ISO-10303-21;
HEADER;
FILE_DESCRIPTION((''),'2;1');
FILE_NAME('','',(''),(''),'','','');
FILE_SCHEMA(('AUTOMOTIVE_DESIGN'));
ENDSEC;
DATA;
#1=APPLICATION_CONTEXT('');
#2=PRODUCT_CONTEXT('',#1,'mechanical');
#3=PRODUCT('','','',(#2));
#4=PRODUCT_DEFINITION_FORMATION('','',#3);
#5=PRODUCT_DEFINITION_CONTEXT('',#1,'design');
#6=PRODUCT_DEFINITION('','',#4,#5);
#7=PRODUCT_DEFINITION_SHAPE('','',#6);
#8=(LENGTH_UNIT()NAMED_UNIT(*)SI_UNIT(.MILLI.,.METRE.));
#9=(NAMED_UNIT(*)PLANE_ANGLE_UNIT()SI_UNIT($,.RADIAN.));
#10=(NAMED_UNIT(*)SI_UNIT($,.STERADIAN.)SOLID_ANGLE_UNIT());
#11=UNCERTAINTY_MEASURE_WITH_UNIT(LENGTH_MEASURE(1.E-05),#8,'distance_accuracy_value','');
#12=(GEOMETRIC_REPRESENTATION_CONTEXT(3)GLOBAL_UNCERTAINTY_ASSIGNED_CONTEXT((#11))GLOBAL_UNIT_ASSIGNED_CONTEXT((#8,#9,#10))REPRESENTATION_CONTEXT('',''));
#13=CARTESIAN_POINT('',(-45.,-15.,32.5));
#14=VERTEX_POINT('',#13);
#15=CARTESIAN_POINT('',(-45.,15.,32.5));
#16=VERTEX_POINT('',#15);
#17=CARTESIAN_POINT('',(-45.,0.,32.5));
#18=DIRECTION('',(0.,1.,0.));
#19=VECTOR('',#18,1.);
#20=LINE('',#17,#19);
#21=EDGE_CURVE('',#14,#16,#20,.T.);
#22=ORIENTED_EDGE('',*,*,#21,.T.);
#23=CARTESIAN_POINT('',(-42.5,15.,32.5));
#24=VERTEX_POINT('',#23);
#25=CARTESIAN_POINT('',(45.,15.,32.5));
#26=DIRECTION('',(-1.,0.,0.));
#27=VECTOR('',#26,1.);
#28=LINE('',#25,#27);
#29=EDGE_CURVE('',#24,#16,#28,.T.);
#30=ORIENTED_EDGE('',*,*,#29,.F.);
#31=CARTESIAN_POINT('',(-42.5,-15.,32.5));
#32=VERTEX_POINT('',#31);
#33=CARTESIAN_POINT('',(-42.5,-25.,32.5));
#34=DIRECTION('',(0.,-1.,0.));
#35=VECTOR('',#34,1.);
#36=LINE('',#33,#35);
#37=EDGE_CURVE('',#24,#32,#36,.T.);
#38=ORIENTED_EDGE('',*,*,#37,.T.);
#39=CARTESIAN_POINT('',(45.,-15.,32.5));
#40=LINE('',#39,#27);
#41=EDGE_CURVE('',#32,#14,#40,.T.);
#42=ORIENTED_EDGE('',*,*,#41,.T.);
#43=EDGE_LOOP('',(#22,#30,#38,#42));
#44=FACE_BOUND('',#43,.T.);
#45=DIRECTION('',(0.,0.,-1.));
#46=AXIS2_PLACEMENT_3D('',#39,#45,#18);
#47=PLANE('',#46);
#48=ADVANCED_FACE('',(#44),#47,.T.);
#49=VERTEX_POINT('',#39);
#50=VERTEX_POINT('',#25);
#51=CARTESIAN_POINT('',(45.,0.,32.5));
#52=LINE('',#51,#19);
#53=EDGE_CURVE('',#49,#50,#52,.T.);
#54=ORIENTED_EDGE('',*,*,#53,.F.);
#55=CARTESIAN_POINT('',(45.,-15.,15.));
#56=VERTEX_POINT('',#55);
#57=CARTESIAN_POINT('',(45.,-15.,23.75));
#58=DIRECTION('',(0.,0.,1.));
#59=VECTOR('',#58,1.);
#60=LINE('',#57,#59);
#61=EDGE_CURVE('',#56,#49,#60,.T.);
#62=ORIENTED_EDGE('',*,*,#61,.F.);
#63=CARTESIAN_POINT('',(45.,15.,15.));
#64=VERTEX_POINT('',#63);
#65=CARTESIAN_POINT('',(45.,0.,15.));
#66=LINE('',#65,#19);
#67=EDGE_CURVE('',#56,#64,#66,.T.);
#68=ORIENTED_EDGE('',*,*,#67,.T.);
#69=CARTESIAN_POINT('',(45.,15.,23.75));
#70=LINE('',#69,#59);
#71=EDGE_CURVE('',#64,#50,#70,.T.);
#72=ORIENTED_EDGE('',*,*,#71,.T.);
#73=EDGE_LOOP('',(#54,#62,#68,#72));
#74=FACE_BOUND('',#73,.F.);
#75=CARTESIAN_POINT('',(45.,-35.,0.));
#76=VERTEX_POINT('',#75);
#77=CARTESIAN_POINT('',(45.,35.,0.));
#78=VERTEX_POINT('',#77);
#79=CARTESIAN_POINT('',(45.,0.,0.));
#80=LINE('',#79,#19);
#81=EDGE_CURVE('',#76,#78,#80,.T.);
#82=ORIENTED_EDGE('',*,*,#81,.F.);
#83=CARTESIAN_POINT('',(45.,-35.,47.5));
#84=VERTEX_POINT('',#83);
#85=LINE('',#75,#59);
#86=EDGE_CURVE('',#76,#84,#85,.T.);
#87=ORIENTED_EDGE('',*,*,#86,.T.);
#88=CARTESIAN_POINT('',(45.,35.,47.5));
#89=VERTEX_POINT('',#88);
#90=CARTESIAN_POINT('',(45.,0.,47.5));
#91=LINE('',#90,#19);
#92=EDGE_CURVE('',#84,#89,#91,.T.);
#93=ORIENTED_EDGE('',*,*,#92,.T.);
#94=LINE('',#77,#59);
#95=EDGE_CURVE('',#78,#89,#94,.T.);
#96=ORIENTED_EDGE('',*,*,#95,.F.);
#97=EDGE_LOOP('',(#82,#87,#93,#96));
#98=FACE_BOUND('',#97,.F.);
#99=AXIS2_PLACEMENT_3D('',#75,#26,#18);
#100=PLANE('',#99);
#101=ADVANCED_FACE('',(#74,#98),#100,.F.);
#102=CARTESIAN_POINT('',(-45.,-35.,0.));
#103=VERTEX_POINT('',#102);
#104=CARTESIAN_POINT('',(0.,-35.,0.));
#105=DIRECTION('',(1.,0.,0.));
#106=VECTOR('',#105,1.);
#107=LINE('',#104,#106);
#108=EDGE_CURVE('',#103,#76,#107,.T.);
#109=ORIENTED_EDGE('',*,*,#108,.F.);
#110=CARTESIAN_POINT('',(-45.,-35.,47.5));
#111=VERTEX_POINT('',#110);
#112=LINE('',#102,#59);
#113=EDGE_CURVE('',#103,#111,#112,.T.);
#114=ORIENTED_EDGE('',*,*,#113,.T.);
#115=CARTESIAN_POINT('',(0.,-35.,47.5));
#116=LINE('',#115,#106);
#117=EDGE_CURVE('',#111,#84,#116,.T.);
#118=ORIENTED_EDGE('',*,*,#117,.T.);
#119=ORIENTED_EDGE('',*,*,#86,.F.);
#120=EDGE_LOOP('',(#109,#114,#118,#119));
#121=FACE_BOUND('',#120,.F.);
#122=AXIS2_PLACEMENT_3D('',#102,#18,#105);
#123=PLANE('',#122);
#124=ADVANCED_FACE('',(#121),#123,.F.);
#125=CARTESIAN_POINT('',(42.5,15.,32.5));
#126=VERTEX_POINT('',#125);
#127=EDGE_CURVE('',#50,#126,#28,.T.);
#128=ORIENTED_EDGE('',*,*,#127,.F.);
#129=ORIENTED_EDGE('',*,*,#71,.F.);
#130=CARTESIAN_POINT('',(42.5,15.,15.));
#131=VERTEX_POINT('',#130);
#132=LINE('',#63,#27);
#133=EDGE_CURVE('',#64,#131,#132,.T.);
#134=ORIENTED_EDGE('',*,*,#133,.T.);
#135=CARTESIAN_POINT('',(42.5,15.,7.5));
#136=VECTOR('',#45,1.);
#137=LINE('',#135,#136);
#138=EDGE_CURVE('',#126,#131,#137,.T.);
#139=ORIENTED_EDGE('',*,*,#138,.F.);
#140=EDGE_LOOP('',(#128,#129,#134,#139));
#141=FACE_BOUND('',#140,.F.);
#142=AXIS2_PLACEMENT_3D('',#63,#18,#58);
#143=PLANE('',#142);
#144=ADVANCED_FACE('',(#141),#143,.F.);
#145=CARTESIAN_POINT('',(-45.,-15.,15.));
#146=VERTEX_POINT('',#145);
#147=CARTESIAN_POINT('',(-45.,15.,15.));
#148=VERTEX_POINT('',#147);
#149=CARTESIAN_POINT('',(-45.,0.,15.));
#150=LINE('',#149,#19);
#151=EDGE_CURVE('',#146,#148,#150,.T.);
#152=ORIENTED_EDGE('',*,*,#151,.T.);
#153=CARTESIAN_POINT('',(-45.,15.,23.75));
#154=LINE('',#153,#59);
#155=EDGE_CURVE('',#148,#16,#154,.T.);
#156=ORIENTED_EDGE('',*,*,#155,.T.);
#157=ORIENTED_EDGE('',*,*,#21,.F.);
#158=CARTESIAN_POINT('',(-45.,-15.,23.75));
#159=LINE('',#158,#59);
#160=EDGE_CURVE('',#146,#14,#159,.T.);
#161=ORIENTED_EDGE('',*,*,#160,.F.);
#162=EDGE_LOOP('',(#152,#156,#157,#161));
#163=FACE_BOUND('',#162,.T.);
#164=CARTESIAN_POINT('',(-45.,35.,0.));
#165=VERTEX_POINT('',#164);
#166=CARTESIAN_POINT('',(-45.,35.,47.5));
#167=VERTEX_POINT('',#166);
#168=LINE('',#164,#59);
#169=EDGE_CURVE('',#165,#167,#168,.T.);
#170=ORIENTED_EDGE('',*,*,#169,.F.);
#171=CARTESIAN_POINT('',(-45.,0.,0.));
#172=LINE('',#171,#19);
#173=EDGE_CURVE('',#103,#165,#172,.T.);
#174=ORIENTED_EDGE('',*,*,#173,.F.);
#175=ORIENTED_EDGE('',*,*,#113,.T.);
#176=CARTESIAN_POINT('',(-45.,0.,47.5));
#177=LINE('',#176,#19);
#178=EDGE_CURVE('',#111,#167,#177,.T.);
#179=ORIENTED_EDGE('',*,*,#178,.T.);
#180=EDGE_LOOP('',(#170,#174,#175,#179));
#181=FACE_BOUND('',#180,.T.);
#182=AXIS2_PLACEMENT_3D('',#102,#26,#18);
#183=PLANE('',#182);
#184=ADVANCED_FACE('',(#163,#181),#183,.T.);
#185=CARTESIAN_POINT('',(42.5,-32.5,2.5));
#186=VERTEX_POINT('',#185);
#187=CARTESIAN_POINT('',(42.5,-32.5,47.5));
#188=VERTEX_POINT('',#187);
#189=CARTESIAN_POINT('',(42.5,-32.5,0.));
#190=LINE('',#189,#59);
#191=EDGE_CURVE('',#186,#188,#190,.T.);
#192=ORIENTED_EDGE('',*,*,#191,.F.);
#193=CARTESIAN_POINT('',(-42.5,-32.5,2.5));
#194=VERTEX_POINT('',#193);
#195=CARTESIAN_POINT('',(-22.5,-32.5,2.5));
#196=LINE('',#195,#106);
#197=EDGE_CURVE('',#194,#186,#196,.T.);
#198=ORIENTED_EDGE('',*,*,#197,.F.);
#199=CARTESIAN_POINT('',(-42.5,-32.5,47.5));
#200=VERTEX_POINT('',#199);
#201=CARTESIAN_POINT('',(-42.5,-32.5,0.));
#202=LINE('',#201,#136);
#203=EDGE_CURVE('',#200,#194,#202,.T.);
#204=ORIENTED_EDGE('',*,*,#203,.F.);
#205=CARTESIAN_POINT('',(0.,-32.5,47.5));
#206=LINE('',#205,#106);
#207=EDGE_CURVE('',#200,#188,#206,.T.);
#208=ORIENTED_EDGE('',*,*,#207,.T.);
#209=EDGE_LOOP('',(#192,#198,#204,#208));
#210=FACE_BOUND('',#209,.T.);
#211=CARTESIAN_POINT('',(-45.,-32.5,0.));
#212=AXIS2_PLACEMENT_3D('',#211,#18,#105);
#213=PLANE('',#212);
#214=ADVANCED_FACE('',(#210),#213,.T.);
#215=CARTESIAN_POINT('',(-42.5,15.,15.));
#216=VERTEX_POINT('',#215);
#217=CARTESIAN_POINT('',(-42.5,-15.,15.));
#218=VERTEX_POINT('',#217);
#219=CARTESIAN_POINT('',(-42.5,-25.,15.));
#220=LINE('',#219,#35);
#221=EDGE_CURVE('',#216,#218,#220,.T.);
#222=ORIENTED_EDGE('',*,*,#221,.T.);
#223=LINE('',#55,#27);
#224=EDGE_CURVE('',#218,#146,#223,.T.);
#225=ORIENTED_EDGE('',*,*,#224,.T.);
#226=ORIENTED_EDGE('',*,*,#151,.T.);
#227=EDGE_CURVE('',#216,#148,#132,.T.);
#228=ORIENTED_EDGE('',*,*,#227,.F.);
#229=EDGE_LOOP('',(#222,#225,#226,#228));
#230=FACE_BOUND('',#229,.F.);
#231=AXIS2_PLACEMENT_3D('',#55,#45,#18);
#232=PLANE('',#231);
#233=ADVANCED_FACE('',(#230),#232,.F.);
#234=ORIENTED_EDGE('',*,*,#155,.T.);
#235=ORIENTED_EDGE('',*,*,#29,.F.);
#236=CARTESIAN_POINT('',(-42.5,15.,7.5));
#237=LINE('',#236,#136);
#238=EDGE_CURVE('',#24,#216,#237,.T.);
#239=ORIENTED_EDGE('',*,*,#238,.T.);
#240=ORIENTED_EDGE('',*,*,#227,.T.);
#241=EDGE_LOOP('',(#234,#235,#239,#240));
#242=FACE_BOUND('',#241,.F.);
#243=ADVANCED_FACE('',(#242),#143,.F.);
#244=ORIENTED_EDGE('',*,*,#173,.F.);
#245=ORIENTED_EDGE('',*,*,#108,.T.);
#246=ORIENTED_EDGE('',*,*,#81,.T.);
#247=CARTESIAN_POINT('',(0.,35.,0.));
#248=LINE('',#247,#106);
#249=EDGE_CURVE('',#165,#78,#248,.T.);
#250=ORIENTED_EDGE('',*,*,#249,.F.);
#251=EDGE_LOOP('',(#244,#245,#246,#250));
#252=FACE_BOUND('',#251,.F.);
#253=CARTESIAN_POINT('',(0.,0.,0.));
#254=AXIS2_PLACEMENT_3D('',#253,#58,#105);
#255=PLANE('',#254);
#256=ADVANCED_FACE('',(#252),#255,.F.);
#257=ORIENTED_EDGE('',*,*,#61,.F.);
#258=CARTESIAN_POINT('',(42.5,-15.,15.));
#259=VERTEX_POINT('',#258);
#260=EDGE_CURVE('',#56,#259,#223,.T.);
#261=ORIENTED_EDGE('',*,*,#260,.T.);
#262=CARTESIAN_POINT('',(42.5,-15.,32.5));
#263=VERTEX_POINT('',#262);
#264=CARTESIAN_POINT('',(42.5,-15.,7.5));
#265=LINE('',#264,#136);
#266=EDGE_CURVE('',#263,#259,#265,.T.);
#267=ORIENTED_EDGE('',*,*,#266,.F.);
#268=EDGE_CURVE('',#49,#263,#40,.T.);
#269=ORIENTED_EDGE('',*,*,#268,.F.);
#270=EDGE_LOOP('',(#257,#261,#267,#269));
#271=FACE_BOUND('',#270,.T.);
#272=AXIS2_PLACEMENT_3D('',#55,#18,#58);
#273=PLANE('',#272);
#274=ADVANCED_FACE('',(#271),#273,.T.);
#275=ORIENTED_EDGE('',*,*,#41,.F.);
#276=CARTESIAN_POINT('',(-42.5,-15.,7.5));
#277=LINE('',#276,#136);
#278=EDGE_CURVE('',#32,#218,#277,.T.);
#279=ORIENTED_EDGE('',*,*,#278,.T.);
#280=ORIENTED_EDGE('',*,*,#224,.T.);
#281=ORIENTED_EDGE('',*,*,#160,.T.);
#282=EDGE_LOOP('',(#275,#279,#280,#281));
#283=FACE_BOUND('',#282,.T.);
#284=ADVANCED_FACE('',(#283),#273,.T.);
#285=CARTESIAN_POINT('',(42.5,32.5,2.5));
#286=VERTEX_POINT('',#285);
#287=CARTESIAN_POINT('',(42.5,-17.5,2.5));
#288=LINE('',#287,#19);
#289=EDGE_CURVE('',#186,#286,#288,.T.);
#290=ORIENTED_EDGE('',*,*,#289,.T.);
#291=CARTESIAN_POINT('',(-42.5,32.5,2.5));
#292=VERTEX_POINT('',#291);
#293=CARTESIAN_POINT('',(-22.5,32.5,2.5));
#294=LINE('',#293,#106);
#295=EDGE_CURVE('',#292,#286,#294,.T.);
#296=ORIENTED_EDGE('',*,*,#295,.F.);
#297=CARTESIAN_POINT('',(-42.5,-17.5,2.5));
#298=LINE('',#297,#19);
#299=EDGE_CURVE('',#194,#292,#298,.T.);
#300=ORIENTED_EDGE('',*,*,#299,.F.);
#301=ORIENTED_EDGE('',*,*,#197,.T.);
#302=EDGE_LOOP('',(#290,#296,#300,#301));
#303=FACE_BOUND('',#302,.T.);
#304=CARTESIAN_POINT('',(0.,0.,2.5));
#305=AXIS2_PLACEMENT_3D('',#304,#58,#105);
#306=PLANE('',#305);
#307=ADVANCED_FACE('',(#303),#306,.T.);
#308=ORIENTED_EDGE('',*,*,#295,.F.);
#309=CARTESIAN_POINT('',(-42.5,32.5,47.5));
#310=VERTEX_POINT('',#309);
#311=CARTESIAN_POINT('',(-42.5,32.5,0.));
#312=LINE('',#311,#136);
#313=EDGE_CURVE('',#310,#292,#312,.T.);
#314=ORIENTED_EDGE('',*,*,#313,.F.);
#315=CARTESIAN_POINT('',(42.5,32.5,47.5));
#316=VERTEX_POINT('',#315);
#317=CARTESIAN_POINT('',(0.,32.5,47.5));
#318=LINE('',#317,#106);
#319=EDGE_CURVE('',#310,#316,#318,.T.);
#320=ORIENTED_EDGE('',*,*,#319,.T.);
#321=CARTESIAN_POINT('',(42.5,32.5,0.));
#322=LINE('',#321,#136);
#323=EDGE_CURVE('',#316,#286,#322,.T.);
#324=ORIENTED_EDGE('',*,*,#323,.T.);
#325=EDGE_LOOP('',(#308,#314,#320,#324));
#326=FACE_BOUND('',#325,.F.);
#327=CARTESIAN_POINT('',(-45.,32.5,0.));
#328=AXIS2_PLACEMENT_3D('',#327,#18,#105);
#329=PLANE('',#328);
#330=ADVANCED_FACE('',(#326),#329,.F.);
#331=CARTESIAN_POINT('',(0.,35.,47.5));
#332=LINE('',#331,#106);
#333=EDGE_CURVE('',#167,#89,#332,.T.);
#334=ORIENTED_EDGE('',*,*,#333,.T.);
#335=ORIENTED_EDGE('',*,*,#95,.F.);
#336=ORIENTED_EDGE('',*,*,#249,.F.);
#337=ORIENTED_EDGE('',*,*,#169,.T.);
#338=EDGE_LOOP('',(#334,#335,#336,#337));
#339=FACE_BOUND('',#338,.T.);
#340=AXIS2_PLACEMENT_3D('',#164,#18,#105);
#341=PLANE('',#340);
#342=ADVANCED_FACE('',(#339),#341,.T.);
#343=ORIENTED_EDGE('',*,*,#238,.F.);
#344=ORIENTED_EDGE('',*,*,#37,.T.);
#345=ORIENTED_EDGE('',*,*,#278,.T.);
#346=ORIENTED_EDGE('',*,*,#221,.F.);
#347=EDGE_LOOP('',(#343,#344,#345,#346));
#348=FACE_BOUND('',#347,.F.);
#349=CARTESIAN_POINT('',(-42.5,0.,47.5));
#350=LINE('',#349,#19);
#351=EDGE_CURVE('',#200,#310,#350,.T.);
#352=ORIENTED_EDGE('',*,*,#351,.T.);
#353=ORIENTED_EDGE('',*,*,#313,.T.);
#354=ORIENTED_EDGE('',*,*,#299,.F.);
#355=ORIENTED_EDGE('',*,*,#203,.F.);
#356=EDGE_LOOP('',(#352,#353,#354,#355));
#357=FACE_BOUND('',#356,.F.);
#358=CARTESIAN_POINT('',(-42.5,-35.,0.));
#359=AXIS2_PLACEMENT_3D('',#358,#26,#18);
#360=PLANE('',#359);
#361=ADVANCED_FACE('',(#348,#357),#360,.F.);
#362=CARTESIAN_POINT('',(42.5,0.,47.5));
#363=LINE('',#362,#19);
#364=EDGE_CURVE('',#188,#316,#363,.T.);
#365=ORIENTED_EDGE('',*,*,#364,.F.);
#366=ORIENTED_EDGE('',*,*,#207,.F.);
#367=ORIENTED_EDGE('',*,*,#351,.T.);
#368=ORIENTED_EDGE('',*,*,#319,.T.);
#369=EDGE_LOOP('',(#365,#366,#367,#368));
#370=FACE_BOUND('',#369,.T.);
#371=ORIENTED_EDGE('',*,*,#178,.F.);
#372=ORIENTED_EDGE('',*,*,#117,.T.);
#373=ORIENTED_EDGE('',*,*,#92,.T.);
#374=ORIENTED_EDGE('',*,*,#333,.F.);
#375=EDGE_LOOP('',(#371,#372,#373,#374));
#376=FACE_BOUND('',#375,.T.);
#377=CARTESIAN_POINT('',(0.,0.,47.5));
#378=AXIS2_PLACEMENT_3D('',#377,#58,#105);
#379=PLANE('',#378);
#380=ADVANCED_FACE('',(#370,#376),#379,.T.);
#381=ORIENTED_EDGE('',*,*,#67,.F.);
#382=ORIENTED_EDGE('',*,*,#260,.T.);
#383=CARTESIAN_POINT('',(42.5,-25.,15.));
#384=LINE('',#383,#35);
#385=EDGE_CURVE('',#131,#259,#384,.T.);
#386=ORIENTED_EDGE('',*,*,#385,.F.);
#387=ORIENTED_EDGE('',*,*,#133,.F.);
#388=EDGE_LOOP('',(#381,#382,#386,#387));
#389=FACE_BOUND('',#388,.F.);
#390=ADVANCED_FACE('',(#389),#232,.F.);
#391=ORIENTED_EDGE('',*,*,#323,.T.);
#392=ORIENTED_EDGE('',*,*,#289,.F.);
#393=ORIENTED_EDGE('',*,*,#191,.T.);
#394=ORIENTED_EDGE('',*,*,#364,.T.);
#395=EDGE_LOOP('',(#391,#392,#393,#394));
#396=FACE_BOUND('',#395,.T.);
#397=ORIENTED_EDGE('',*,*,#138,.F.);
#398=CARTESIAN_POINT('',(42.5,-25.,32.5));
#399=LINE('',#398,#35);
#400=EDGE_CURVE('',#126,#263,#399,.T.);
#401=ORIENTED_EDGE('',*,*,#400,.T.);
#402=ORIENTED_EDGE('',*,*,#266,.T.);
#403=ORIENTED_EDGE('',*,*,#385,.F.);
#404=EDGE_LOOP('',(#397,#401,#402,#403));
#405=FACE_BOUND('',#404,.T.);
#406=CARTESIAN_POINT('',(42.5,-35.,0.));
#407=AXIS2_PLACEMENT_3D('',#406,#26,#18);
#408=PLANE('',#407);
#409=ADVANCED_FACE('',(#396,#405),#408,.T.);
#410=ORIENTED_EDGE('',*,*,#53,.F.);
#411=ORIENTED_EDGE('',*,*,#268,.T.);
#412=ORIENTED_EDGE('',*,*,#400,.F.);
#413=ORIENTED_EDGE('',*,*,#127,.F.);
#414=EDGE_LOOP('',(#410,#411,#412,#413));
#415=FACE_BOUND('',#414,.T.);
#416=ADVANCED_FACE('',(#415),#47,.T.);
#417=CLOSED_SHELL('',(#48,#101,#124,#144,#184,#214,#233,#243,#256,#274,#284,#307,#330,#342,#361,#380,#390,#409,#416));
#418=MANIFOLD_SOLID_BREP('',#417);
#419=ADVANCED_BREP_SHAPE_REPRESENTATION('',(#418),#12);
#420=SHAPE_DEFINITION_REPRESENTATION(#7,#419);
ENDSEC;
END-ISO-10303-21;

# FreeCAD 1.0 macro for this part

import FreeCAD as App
import Part
import Sketcher
Q = App.Units.Quantity


def faces_at(feature, points):
    """Names of the faces that lie closest to the given points."""
    faces = feature.Shape.Faces
    near = lambda p: min(range(len(faces)), key=lambda i: faces[i].distToShape(Part.Vertex(*p))[0])
    return sorted({f"Face{near(p) + 1}" for p in points})


def add_polygon(sketch, points):
    """Adds a closed chain of lines whose ends are joined by coincident constraints."""
    first, n = sketch.GeometryCount, len(points)
    for a, b in zip(points, points[1:] + points[:1]):
        sketch.addGeometry(Part.LineSegment(App.Vector(*a, 0), App.Vector(*b, 0)), False)
    for i in range(n):
        sketch.addConstraint(Sketcher.Constraint("Coincident", first + i, 2, first + (i + 1) % n, 1))

doc = App.newDocument("Part")
body = doc.addObject("PartDesign::Body", "Body")

# Sketch on XY plane
sketch1 = body.newObject("Sketcher::SketchObject", "Sketch")
sketch1.AttachmentSupport = (doc.getObject("XY_Plane"), [""])
sketch1.MapMode = "FlatFace"
add_polygon(sketch1, [(-45, 35), (-45, -35), (45, -35), (45, 35)])  # lines 0-3
sketch1.addConstraint(Sketcher.Constraint("Vertical", 0))
sketch1.addConstraint(Sketcher.Constraint("Horizontal", 1))
sketch1.addConstraint(Sketcher.Constraint("Vertical", 2))
sketch1.addConstraint(Sketcher.Constraint("Horizontal", 3))
sketch1.addConstraint(Sketcher.Constraint("Symmetric", 0, 2, 2, 2, -1, 1))
sketch1.addConstraint(Sketcher.Constraint("DistanceX", 1, 1, 1, 2, Q("90 mm")))
sketch1.addConstraint(Sketcher.Constraint("DistanceY", 0, 2, 0, 1, Q("70 mm")))
pad1 = body.newObject("PartDesign::Pad", "Pad")
pad1.Profile = sketch1
pad1.Length = 47.5
doc.recompute()

thickness = body.newObject("PartDesign::Thickness", "Thickness")
thickness.Base = (pad1, faces_at(pad1, [(0, 0, 47.5)]))
thickness.Value = 2.5
thickness.Reversed = True
thickness.Join = "Arc"

# Sketch on YZ plane
sketch2 = body.newObject("Sketcher::SketchObject", "Sketch001")
sketch2.AttachmentSupport = (doc.getObject("YZ_Plane"), [""])
sketch2.MapMode = "FlatFace"
sketch2.AttachmentOffset = App.Placement(App.Vector(0, 0, 45), App.Rotation())
add_polygon(sketch2, [(-15, 32.5), (-15, 15), (15, 15), (15, 32.5)])  # lines 0-3
sketch2.addConstraint(Sketcher.Constraint("Vertical", 0))
sketch2.addConstraint(Sketcher.Constraint("Horizontal", 1))
sketch2.addConstraint(Sketcher.Constraint("Vertical", 2))
sketch2.addConstraint(Sketcher.Constraint("Horizontal", 3))
sketch2.addConstraint(Sketcher.Constraint("DistanceX", 1, 1, 1, 2, Q("30 mm")))
sketch2.addConstraint(Sketcher.Constraint("DistanceY", 0, 2, 0, 1, Q("17.5 mm")))
sketch2.addConstraint(Sketcher.Constraint("DistanceX", 0, 2, -1, 1, Q("15 mm")))
sketch2.addConstraint(Sketcher.Constraint("DistanceY", -1, 1, 0, 2, Q("15 mm")))
pocket1 = body.newObject("PartDesign::Pocket", "Pocket")
pocket1.Profile = sketch2
pocket1.Type = "ThroughAll"

doc.recompute()
